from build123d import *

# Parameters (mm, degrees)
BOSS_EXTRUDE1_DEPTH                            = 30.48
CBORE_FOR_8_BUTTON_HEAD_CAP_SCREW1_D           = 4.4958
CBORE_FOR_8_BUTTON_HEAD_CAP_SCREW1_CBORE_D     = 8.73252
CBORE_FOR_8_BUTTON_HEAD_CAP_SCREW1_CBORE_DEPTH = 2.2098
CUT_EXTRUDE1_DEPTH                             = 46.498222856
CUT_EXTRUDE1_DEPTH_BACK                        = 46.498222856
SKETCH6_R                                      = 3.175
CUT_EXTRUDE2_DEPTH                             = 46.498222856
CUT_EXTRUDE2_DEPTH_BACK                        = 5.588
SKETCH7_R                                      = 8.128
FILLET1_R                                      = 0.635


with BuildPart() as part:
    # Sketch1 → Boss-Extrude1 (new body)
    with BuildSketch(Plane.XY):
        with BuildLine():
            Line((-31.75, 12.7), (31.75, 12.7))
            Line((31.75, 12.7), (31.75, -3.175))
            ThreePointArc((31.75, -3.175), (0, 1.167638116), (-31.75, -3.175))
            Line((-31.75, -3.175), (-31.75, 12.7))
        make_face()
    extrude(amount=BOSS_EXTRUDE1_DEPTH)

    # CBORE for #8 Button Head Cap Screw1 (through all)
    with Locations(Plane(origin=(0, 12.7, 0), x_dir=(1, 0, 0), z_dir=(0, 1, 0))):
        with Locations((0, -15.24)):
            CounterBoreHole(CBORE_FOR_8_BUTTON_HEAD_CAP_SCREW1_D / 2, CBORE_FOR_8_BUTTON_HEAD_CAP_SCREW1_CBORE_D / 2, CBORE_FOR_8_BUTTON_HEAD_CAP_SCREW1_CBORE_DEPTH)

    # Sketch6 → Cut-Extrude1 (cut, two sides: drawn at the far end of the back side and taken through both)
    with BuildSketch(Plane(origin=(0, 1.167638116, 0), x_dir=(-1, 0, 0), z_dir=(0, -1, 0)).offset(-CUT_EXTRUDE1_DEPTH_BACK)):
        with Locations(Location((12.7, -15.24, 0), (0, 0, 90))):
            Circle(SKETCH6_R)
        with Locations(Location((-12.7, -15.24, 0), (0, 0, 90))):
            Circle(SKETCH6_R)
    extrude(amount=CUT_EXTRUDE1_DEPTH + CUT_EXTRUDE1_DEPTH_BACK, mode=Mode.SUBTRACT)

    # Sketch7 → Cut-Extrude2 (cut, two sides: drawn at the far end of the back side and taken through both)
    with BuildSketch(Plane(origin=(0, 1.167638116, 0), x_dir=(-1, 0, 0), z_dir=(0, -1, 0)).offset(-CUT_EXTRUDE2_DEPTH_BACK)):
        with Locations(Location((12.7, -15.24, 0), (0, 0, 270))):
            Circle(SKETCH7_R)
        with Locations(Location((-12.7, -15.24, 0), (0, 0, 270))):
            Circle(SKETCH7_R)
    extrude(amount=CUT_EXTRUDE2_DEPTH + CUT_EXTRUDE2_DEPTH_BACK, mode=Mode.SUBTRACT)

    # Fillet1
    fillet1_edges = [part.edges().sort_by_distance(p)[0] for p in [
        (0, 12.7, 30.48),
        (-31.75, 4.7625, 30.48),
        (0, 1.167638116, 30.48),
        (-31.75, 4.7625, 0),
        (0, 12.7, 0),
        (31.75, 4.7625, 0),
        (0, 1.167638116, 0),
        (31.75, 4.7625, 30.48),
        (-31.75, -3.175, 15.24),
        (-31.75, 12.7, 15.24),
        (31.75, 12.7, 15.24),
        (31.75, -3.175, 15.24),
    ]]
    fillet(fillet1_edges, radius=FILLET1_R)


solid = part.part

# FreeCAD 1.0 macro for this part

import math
import FreeCAD as App
import Part
import Sketcher

V = App.Vector
Q = App.Units.Quantity


def edges_at(feature, points):
    """Names of the edges that pass closest to the given points."""
    edges = feature.Shape.Edges
    near = lambda p: min(range(len(edges)), key=lambda i: edges[i].distToShape(Part.Vertex(*p))[0])
    return sorted({f"Edge{near(p) + 1}" for p in points})

doc = App.newDocument("Part")
body = doc.addObject("PartDesign::Body", "Body")

# Sketch on XY plane
sketch1 = doc.addObject("Sketcher::SketchObject", "Sketch")
body.addObject(sketch1)
sketch1.AttachmentSupport = (doc.XY_Plane, [""])
sketch1.MapMode = "FlatFace"
sketch1.addGeometry([
    Part.LineSegment(V(32, 13, 0), V(-32, 13, 0)),
    Part.LineSegment(V(-32, 13, 0), V(-32, -3, 0)),
    Part.ArcOfCircle(Part.Circle(V(0, -117, 0), V(0, 0, 1), 118), math.radians(74), math.radians(106)),
    Part.LineSegment(V(32, -3, 0), V(32, 13, 0)),
], False)
sketch1.addConstraint([
    Sketcher.Constraint("Coincident", 0, 2, 1, 1),
    Sketcher.Constraint("Coincident", 1, 2, 2, 2),
    Sketcher.Constraint("Coincident", 2, 1, 3, 1),
    Sketcher.Constraint("Coincident", 3, 2, 0, 1),
    Sketcher.Constraint("Horizontal", 0),
    Sketcher.Constraint("Vertical", 1),
    Sketcher.Constraint("Vertical", 3),
    Sketcher.Constraint("Symmetric", 1, 2, 2, 1, -2),
    Sketcher.Constraint("DistanceX", 0, 2, 0, 1, Q("2.5 in")),
    Sketcher.Constraint("Radius", 2, Q("4.655 in")),
    Sketcher.Constraint("DistanceY", -1, 1, 0, 2, Q("0.5 in")),
    Sketcher.Constraint("DistanceY", 1, 2, 1, 1, Q("0.625 in")),
])
pad1 = doc.addObject("PartDesign::Pad", "Pad")
body.addObject(pad1)
pad1.Profile = sketch1
pad1.Length = Q("1.2 in")

# Sketch on XZ plane
sketch2 = doc.addObject("Sketcher::SketchObject", "Sketch001")
body.addObject(sketch2)
sketch2.AttachmentSupport = (doc.XZ_Plane, [""])
sketch2.MapMode = "FlatFace"
sketch2.AttachmentOffset = App.Placement(V(0, 0, -0.5 * 25.4), App.Rotation())
sketch2.addGeometry(Part.Circle(V(0, 15.2, 0), V(0, 0, 1), 2.2), False)
sketch2.addConstraint([
    Sketcher.Constraint("PointOnObject", 0, 3, -2),
    Sketcher.Constraint("Diameter", 0, Q("0.177 in")),
    Sketcher.Constraint("DistanceY", -1, 1, 0, 3, Q("0.6 in")),
])
doc.recompute()
hole = doc.addObject("PartDesign::Hole", "Hole")
body.addObject(hole)
hole.Profile = sketch2
hole.ThreadType = "None"
hole.Diameter = Q("0.177 in")
hole.DepthType = "ThroughAll"
hole.HoleCutType = "Counterbore"
hole.HoleCutDiameter = Q("0.3438 in")
hole.HoleCutDepth = Q("0.087 in")
hole.Reversed = True

# Sketch on XZ plane
sketch3 = doc.addObject("Sketcher::SketchObject", "Sketch002")
body.addObject(sketch3)
sketch3.AttachmentSupport = (doc.XZ_Plane, [""])
sketch3.MapMode = "FlatFace"
sketch3.AttachmentOffset = App.Placement(V(0, 0, -1.167638), App.Rotation())
sketch3.addGeometry([
    Part.Circle(V(-12.7, 15.2, 0), V(0, 0, 1), 3.2),
    Part.Circle(V(12.7, 15.2, 0), V(0, 0, 1), 3.2),
], False)
sketch3.addConstraint([
    Sketcher.Constraint("Equal", 0, 1),
    Sketcher.Constraint("Symmetric", 0, 3, 1, 3, -2),
    Sketcher.Constraint("Diameter", 0, Q("0.25 in")),
    Sketcher.Constraint("DistanceX", 0, 3, 1, 3, Q("1 in")),
    Sketcher.Constraint("DistanceY", -1, 1, 0, 3, Q("0.6 in")),
])
pocket1 = doc.addObject("PartDesign::Pocket", "Pocket")
body.addObject(pocket1)
pocket1.Profile = sketch3
pocket1.Type = "ThroughAll"
pocket1.Midplane = True

# Sketch on XZ plane
sketch4 = doc.addObject("Sketcher::SketchObject", "Sketch003")
body.addObject(sketch4)
sketch4.AttachmentSupport = (doc.XZ_Plane, [""])
sketch4.MapMode = "FlatFace"
sketch4.AttachmentOffset = App.Placement(V(0, 0, -1.167638), App.Rotation())
sketch4.addGeometry([
    Part.Circle(V(-13, 15, 0), V(0, 0, 1), 8),
    Part.Circle(V(13, 15, 0), V(0, 0, 1), 8),
], False)
sketch4.addConstraint([
    Sketcher.Constraint("Equal", 0, 1),
    Sketcher.Constraint("Symmetric", 0, 3, 1, 3, -2),
    Sketcher.Constraint("Diameter", 0, Q("0.64 in")),
    Sketcher.Constraint("DistanceX", 0, 3, 1, 3, Q("1 in")),
    Sketcher.Constraint("DistanceY", -1, 1, 0, 3, Q("0.6 in")),
])
pocket2 = doc.addObject("PartDesign::Pocket", "Pocket001")
body.addObject(pocket2)
pocket2.Profile = sketch4
pocket2.Type = "TwoLengths"
pocket2.Length = 46.498223
pocket2.Length2 = Q("0.22 in")
pocket2.Reversed = True
doc.recompute()

fillet = doc.addObject("PartDesign::Fillet", "Fillet")
body.addObject(fillet)
fillet.Base = (pocket2, edges_at(pocket2, [
    (0, 12.7, 30.48),
    (-31.75, 4.763, 30.48),
    (0, 1.168, 30.48),
    (-31.75, 4.763, 0),
    (0, 12.7, 0),
    (31.75, 4.763, 0),
    (0, 1.168, 0),
    (31.75, 4.763, 30.48),
    (-31.75, -3.175, 15.24),
    (-31.75, 12.7, 15.24),
    (31.75, 12.7, 15.24),
    (31.75, -3.175, 15.24),
]))
fillet.Radius = Q("0.025 in")

doc.recompute()
